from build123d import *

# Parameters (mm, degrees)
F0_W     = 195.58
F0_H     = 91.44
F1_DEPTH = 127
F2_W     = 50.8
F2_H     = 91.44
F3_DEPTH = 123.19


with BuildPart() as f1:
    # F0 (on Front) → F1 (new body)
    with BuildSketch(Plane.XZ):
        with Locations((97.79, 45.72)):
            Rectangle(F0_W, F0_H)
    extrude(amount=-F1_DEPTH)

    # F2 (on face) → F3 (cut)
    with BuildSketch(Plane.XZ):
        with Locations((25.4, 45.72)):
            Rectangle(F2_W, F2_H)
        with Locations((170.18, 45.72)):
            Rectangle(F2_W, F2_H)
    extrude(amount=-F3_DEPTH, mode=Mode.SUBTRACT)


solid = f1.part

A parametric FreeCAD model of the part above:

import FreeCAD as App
import Part
import Sketcher
Q = App.Units.Quantity


def add_polygon(sketch, points):
    """Adds a closed chain of lines whose ends are joined by coincident constraints."""
    first, n = sketch.GeometryCount, len(points)
    for a, b in zip(points, points[1:] + points[:1]):
        sketch.addGeometry(Part.LineSegment(App.Vector(*a, 0), App.Vector(*b, 0)), False)
    for i in range(n):
        sketch.addConstraint(Sketcher.Constraint("Coincident", first + i, 2, first + (i + 1) % n, 1))

doc = App.newDocument("Part")
body = doc.addObject("PartDesign::Body", "Body")

# Sketch on XZ plane
sketch1 = body.newObject("Sketcher::SketchObject", "Sketch")
sketch1.AttachmentSupport = (doc.getObject("XZ_Plane"), [""])
sketch1.MapMode = "FlatFace"
add_polygon(sketch1, [(0, 91), (0, 0), (196, 0), (196, 91)])  # lines 0-3
sketch1.addConstraint(Sketcher.Constraint("Vertical", 0))
sketch1.addConstraint(Sketcher.Constraint("Horizontal", 1))
sketch1.addConstraint(Sketcher.Constraint("Vertical", 2))
sketch1.addConstraint(Sketcher.Constraint("Horizontal", 3))
sketch1.addConstraint(Sketcher.Constraint("Coincident", 0, 2, -1, 1))
sketch1.addConstraint(Sketcher.Constraint("DistanceX", 1, 1, 1, 2, Q("7.7 in")))
sketch1.addConstraint(Sketcher.Constraint("DistanceY", 0, 2, 0, 1, Q("3.6 in")))
pad1 = body.newObject("PartDesign::Pad", "Pad")
pad1.Profile = sketch1
pad1.Length = Q("5 in")
pad1.Reversed = True

# Sketch on XZ plane
sketch2 = body.newObject("Sketcher::SketchObject", "Sketch001")
sketch2.AttachmentSupport = (doc.getObject("XZ_Plane"), [""])
sketch2.MapMode = "FlatFace"
add_polygon(sketch2, [(0, 91), (0, 0), (51, 0), (51, 91)])  # lines 0-3
add_polygon(sketch2, [(145, 91), (145, 0), (196, 0), (196, 91)])  # lines 4-7
sketch2.addConstraint(Sketcher.Constraint("Vertical", 0))
sketch2.addConstraint(Sketcher.Constraint("Horizontal", 1))
sketch2.addConstraint(Sketcher.Constraint("Vertical", 2))
sketch2.addConstraint(Sketcher.Constraint("Horizontal", 3))
sketch2.addConstraint(Sketcher.Constraint("Vertical", 4))
sketch2.addConstraint(Sketcher.Constraint("Horizontal", 5))
sketch2.addConstraint(Sketcher.Constraint("Vertical", 6))
sketch2.addConstraint(Sketcher.Constraint("Horizontal", 7))
sketch2.addConstraint(Sketcher.Constraint("Coincident", 0, 2, -1, 1))
sketch2.addConstraint(Sketcher.Constraint("PointOnObject", 4, 2, -1))
sketch2.addConstraint(Sketcher.Constraint("Horizontal", 3, 2, 6, 2))
sketch2.addConstraint(Sketcher.Constraint("Equal", 3, 5))
sketch2.addConstraint(Sketcher.Constraint("DistanceX", 1, 1, 1, 2, Q("2 in")))
sketch2.addConstraint(Sketcher.Constraint("DistanceY", 0, 2, 0, 1, Q("3.6 in")))
sketch2.addConstraint(Sketcher.Constraint("DistanceX", -1, 1, 4, 2, Q("5.7 in")))
pocket1 = body.newObject("PartDesign::Pocket", "Pocket")
pocket1.Profile = sketch2
pocket1.Length = Q("4.85 in")

doc.recompute()
